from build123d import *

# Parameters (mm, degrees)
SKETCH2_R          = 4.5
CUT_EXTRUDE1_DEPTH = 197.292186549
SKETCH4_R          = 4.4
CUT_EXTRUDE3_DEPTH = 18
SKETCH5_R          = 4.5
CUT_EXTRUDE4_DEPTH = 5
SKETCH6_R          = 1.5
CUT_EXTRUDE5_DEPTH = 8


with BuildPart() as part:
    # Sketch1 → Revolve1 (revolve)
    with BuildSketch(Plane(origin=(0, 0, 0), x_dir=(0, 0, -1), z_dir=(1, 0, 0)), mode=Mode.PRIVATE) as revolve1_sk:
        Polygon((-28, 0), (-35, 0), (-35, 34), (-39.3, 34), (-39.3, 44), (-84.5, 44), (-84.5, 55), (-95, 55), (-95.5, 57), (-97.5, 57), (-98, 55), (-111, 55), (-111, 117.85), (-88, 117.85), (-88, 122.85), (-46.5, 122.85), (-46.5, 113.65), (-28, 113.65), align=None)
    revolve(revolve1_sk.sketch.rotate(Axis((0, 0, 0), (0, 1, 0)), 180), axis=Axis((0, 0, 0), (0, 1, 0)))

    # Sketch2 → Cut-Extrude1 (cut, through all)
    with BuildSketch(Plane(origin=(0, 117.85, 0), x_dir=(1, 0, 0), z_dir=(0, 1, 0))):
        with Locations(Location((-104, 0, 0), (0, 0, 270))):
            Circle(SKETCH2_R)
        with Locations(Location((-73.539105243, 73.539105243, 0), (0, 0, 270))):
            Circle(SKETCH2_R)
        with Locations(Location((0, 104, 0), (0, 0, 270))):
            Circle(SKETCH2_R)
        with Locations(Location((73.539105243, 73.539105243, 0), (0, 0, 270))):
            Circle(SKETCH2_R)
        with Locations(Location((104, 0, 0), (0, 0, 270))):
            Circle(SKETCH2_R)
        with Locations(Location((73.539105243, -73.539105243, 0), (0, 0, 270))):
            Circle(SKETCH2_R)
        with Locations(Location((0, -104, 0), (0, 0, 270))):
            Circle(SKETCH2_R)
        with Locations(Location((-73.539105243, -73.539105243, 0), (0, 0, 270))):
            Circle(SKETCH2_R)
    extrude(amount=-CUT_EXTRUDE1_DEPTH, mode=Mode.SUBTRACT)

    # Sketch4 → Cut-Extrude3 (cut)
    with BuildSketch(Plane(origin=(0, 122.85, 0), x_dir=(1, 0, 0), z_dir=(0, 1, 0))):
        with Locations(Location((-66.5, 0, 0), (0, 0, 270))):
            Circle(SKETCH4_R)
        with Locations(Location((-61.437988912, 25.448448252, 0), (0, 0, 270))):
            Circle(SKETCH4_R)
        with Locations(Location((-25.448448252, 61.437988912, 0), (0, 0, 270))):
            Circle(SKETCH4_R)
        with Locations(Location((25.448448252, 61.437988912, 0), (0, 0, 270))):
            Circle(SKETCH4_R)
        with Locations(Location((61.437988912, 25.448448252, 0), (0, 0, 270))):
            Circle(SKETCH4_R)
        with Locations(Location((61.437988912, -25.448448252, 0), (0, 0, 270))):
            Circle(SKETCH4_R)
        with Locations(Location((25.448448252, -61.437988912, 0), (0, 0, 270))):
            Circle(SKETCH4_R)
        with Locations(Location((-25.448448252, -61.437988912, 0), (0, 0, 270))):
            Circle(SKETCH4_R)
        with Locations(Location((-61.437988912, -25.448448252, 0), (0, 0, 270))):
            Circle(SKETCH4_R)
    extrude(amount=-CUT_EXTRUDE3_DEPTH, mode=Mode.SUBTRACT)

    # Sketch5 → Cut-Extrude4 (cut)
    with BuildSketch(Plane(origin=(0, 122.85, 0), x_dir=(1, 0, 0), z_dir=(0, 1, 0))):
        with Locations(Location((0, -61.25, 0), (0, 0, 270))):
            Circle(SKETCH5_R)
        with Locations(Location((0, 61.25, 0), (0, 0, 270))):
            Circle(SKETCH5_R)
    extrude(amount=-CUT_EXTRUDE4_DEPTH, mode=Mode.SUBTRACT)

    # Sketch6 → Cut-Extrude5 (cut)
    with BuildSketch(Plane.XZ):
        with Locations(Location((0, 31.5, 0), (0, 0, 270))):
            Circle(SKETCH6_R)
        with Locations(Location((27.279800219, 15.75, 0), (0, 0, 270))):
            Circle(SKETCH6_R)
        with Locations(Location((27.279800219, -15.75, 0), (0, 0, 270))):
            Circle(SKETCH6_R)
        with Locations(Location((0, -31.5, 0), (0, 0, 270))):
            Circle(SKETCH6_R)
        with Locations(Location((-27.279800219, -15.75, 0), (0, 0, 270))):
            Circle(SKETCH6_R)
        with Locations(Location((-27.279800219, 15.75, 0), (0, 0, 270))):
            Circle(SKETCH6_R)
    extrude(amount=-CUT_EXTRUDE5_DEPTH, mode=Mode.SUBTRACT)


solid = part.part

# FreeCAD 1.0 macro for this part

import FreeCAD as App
import Part
import Sketcher
Q = App.Units.Quantity

doc = App.newDocument("Part")
body = doc.addObject("PartDesign::Body", "Body")

sketch1 = body.newObject("Sketcher::SketchObject", "Sketch")
sketch1.AttachmentSupport = (doc.getObject("YZ_Plane"), [""])
sketch1.MapMode = "FlatFace"
sketch1.addGeometry(Part.LineSegment(App.Vector(0, 35, 0), App.Vector(0, 28, 0)), False)
sketch1.addGeometry(Part.LineSegment(App.Vector(0, 28, 0), App.Vector(113.65, 28, 0)), False)
sketch1.addGeometry(Part.LineSegment(App.Vector(113.65, 28, 0), App.Vector(113.65, 46.5, 0)), False)
sketch1.addGeometry(Part.LineSegment(App.Vector(113.65, 46.5, 0), App.Vector(122.85, 46.5, 0)), False)
sketch1.addGeometry(Part.LineSegment(App.Vector(122.85, 46.5, 0), App.Vector(122.85, 88, 0)), False)
sketch1.addGeometry(Part.LineSegment(App.Vector(122.85, 88, 0), App.Vector(117.85, 88, 0)), False)
sketch1.addGeometry(Part.LineSegment(App.Vector(117.85, 88, 0), App.Vector(117.85, 111, 0)), False)
sketch1.addGeometry(Part.LineSegment(App.Vector(117.85, 111, 0), App.Vector(55, 111, 0)), False)
sketch1.addGeometry(Part.LineSegment(App.Vector(55, 111, 0), App.Vector(55, 98, 0)), False)
sketch1.addGeometry(Part.LineSegment(App.Vector(55, 98, 0), App.Vector(57, 97.5, 0)), False)
sketch1.addGeometry(Part.LineSegment(App.Vector(57, 97.5, 0), App.Vector(57, 95.5, 0)), False)
sketch1.addGeometry(Part.LineSegment(App.Vector(57, 95.5, 0), App.Vector(55, 95, 0)), False)
sketch1.addGeometry(Part.LineSegment(App.Vector(55, 95, 0), App.Vector(55, 84.5, 0)), False)
sketch1.addGeometry(Part.LineSegment(App.Vector(55, 84.5, 0), App.Vector(44, 84.5, 0)), False)
sketch1.addGeometry(Part.LineSegment(App.Vector(44, 84.5, 0), App.Vector(44, 39.3, 0)), False)
sketch1.addGeometry(Part.LineSegment(App.Vector(44, 39.3, 0), App.Vector(34, 39.3, 0)), False)
sketch1.addGeometry(Part.LineSegment(App.Vector(34, 39.3, 0), App.Vector(34, 35, 0)), False)
sketch1.addGeometry(Part.LineSegment(App.Vector(34, 35, 0), App.Vector(0, 35, 0)), False)
sketch1.addConstraint(Sketcher.Constraint("Coincident", 0, 2, 1, 1))
sketch1.addConstraint(Sketcher.Constraint("Coincident", 1, 2, 2, 1))
sketch1.addConstraint(Sketcher.Constraint("Coincident", 2, 2, 3, 1))
sketch1.addConstraint(Sketcher.Constraint("Coincident", 3, 2, 4, 1))
sketch1.addConstraint(Sketcher.Constraint("Coincident", 4, 2, 5, 1))
sketch1.addConstraint(Sketcher.Constraint("Coincident", 5, 2, 6, 1))
sketch1.addConstraint(Sketcher.Constraint("Coincident", 6, 2, 7, 1))
sketch1.addConstraint(Sketcher.Constraint("Coincident", 7, 2, 8, 1))
sketch1.addConstraint(Sketcher.Constraint("Coincident", 8, 2, 9, 1))
sketch1.addConstraint(Sketcher.Constraint("Coincident", 9, 2, 10, 1))
sketch1.addConstraint(Sketcher.Constraint("Coincident", 10, 2, 11, 1))
sketch1.addConstraint(Sketcher.Constraint("Coincident", 11, 2, 12, 1))
sketch1.addConstraint(Sketcher.Constraint("Coincident", 12, 2, 13, 1))
sketch1.addConstraint(Sketcher.Constraint("Coincident", 13, 2, 14, 1))
sketch1.addConstraint(Sketcher.Constraint("Coincident", 14, 2, 15, 1))
sketch1.addConstraint(Sketcher.Constraint("Coincident", 15, 2, 16, 1))
sketch1.addConstraint(Sketcher.Constraint("Coincident", 16, 2, 17, 1))
sketch1.addConstraint(Sketcher.Constraint("Coincident", 17, 2, 0, 1))
sketch1.addConstraint(Sketcher.Constraint("Vertical", 0))
sketch1.addConstraint(Sketcher.Constraint("Horizontal", 1))
sketch1.addConstraint(Sketcher.Constraint("Vertical", 2))
sketch1.addConstraint(Sketcher.Constraint("Horizontal", 3))
sketch1.addConstraint(Sketcher.Constraint("Vertical", 4))
sketch1.addConstraint(Sketcher.Constraint("Horizontal", 5))
sketch1.addConstraint(Sketcher.Constraint("Vertical", 6))
sketch1.addConstraint(Sketcher.Constraint("Horizontal", 7))
sketch1.addConstraint(Sketcher.Constraint("Vertical", 8))
sketch1.addConstraint(Sketcher.Constraint("Vertical", 10))
sketch1.addConstraint(Sketcher.Constraint("Vertical", 12))
sketch1.addConstraint(Sketcher.Constraint("Horizontal", 13))
sketch1.addConstraint(Sketcher.Constraint("Vertical", 14))
sketch1.addConstraint(Sketcher.Constraint("Horizontal", 15))
sketch1.addConstraint(Sketcher.Constraint("Vertical", 16))
sketch1.addConstraint(Sketcher.Constraint("Horizontal", 17))
sketch1.addConstraint(Sketcher.Constraint("PointOnObject", 0, 2, -2))
sketch1.addConstraint(Sketcher.Constraint("Vertical", 8, 2, 11, 2))
sketch1.addConstraint(Sketcher.Constraint("Equal", 9, 11))
sketch1.addConstraint(Sketcher.Constraint("DistanceX", 5, 2, 5, 1, Q("5 mm")))
sketch1.addConstraint(Sketcher.Constraint("DistanceX", 13, 2, 13, 1, Q("11 mm")))
sketch1.addConstraint(Sketcher.Constraint("DistanceX", 15, 2, 15, 1, Q("10 mm")))
sketch1.addConstraint(Sketcher.Constraint("DistanceX", 17, 2, 17, 1, Q("34 mm")))
sketch1.addConstraint(Sketcher.Constraint("DistanceY", 0, 2, 0, 1, Q("7 mm")))
sketch1.addConstraint(Sketcher.Constraint("DistanceY", 6, 1, 6, 2, Q("23 mm")))
sketch1.addConstraint(Sketcher.Constraint("DistanceY", 8, 2, 8, 1, Q("13 mm")))
sketch1.addConstraint(Sketcher.Constraint("DistanceY", 10, 2, 10, 1, Q("2 mm")))
sketch1.addConstraint(Sketcher.Constraint("DistanceX", 3, 1, 3, 2, Q("9.2 mm")))
sketch1.addConstraint(Sketcher.Constraint("DistanceY", 2, 1, 2, 2, Q("18.5 mm")))
sketch1.addConstraint(Sketcher.Constraint("DistanceY", 4, 1, 4, 2, Q("41.5 mm")))
sketch1.addConstraint(Sketcher.Constraint("DistanceY", 12, 2, 12, 1, Q("10.5 mm")))
sketch1.addConstraint(Sketcher.Constraint("DistanceY", 14, 2, 14, 1, Q("45.2 mm")))
sketch1.addConstraint(Sketcher.Constraint("DistanceY", 16, 2, 16, 1, Q("4.3 mm")))
sketch1.addConstraint(Sketcher.Constraint("DistanceY", -1, 1, 0, 2, Q("28 mm")))
sketch1.addConstraint(Sketcher.Constraint("DistanceX", -1, 1, 9, 2, Q("57 mm")))
sketch1.addConstraint(Sketcher.Constraint("DistanceX", 1, 1, 1, 2, Q("113.65 mm")))
revolution = body.newObject("PartDesign::Revolution", "Revolution")
revolution.Profile = sketch1
revolution.ReferenceAxis = (sketch1, ["H_Axis"])
revolution.Angle = 360

sketch2 = body.newObject("Sketcher::SketchObject", "Sketch001")
sketch2.AttachmentSupport = (doc.getObject("XZ_Plane"), [""])
sketch2.MapMode = "FlatFace"
sketch2.AttachmentOffset = App.Placement(App.Vector(0, 0, -117.85), App.Rotation())
sketch2.addGeometry(Part.Circle(App.Vector(-104, 0, 0), App.Vector(0, 0, 1), 4.5), False)
sketch2.addGeometry(Part.Circle(App.Vector(-73.539105, -73.539105, 0), App.Vector(0, 0, 1), 4.5), False)
sketch2.addGeometry(Part.Circle(App.Vector(0, -104, 0), App.Vector(0, 0, 1), 4.5), False)
sketch2.addGeometry(Part.Circle(App.Vector(73.539105, -73.539105, 0), App.Vector(0, 0, 1), 4.5), False)
sketch2.addGeometry(Part.Circle(App.Vector(104, 0, 0), App.Vector(0, 0, 1), 4.5), False)
sketch2.addGeometry(Part.Circle(App.Vector(73.539105, 73.539105, 0), App.Vector(0, 0, 1), 4.5), False)
sketch2.addGeometry(Part.Circle(App.Vector(0, 104, 0), App.Vector(0, 0, 1), 4.5), False)
sketch2.addGeometry(Part.Circle(App.Vector(-73.539105, 73.539105, 0), App.Vector(0, 0, 1), 4.5), False)
sketch2.addConstraint(Sketcher.Constraint("Equal", 0, 1))
sketch2.addConstraint(Sketcher.Constraint("Equal", 1, 2))
sketch2.addConstraint(Sketcher.Constraint("Equal", 2, 3))
sketch2.addConstraint(Sketcher.Constraint("Equal", 3, 4))
sketch2.addConstraint(Sketcher.Constraint("Equal", 4, 5))
sketch2.addConstraint(Sketcher.Constraint("Equal", 5, 6))
sketch2.addConstraint(Sketcher.Constraint("Equal", 6, 7))
sketch2.addConstraint(Sketcher.Constraint("Symmetric", 0, 3, 4, 3, -1, 1))
sketch2.addConstraint(Sketcher.Constraint("Symmetric", 1, 3, 5, 3, -1, 1))
sketch2.addConstraint(Sketcher.Constraint("Symmetric", 2, 3, 6, 3, -1, 1))
sketch2.addConstraint(Sketcher.Constraint("Symmetric", 3, 3, 7, 3, -1, 1))
sketch2.addConstraint(Sketcher.Constraint("Symmetric", 1, 3, 3, 3, -2))
sketch2.addConstraint(Sketcher.Constraint("PointOnObject", 0, 3, -1))
sketch2.addConstraint(Sketcher.Constraint("PointOnObject", 2, 3, -2))
sketch2.addConstraint(Sketcher.Constraint("Diameter", 0, Q("9 mm")))
sketch2.addConstraint(Sketcher.Constraint("DistanceX", 0, 3, -1, 1, Q("104 mm")))
sketch2.addConstraint(Sketcher.Constraint("DistanceY", 2, 3, -1, 1, Q("104 mm")))
sketch2.addConstraint(Sketcher.Constraint("DistanceX", 1, 3, 3, 3, Q("147.07821 mm")))
sketch2.addConstraint(Sketcher.Constraint("DistanceY", 3, 3, 5, 3, Q("147.07821 mm")))
pocket1 = body.newObject("PartDesign::Pocket", "Pocket")
pocket1.Profile = sketch2
pocket1.Type = "ThroughAll"
pocket1.Reversed = True

sketch3 = body.newObject("Sketcher::SketchObject", "Sketch002")
sketch3.AttachmentSupport = (doc.getObject("XZ_Plane"), [""])
sketch3.MapMode = "FlatFace"
sketch3.AttachmentOffset = App.Placement(App.Vector(0, 0, -122.85), App.Rotation())
sketch3.addGeometry(Part.Circle(App.Vector(-66.5, 0, 0), App.Vector(0, 0, 1), 4.4), False)
sketch3.addGeometry(Part.Circle(App.Vector(-61.437989, -25.448448, 0), App.Vector(0, 0, 1), 4.4), False)
sketch3.addGeometry(Part.Circle(App.Vector(-25.448448, -61.437989, 0), App.Vector(0, 0, 1), 4.4), False)
sketch3.addGeometry(Part.Circle(App.Vector(25.448448, -61.437989, 0), App.Vector(0, 0, 1), 4.4), False)
sketch3.addGeometry(Part.Circle(App.Vector(61.437989, -25.448448, 0), App.Vector(0, 0, 1), 4.4), False)
sketch3.addGeometry(Part.Circle(App.Vector(61.437989, 25.448448, 0), App.Vector(0, 0, 1), 4.4), False)
sketch3.addGeometry(Part.Circle(App.Vector(25.448448, 61.437989, 0), App.Vector(0, 0, 1), 4.4), False)
sketch3.addGeometry(Part.Circle(App.Vector(-25.448448, 61.437989, 0), App.Vector(0, 0, 1), 4.4), False)
sketch3.addGeometry(Part.Circle(App.Vector(-61.437989, 25.448448, 0), App.Vector(0, 0, 1), 4.4), False)
sketch3.addConstraint(Sketcher.Constraint("Equal", 0, 1))
sketch3.addConstraint(Sketcher.Constraint("Equal", 1, 2))
sketch3.addConstraint(Sketcher.Constraint("Equal", 2, 3))
sketch3.addConstraint(Sketcher.Constraint("Equal", 3, 4))
sketch3.addConstraint(Sketcher.Constraint("Equal", 4, 5))
sketch3.addConstraint(Sketcher.Constraint("Equal", 5, 6))
sketch3.addConstraint(Sketcher.Constraint("Equal", 6, 7))
sketch3.addConstraint(Sketcher.Constraint("Equal", 7, 8))
sketch3.addConstraint(Sketcher.Constraint("Symmetric", 1, 3, 5, 3, -1, 1))
sketch3.addConstraint(Sketcher.Constraint("Symmetric", 2, 3, 6, 3, -1, 1))
sketch3.addConstraint(Sketcher.Constraint("Symmetric", 3, 3, 7, 3, -1, 1))
sketch3.addConstraint(Sketcher.Constraint("Symmetric", 4, 3, 8, 3, -1, 1))
sketch3.addConstraint(Sketcher.Constraint("Symmetric", 2, 3, 3, 3, -2))
sketch3.addConstraint(Sketcher.Constraint("Symmetric", 1, 3, 4, 3, -2))
sketch3.addConstraint(Sketcher.Constraint("PointOnObject", 0, 3, -1))
sketch3.addConstraint(Sketcher.Constraint("Diameter", 0, Q("8.8 mm")))
sketch3.addConstraint(Sketcher.Constraint("DistanceX", 0, 3, -1, 1, Q("66.5 mm")))
sketch3.addConstraint(Sketcher.Constraint("DistanceX", 1, 3, -1, 1, Q("61.437989 mm")))
sketch3.addConstraint(Sketcher.Constraint("DistanceY", 1, 3, -1, 1, Q("25.448448 mm")))
sketch3.addConstraint(Sketcher.Constraint("DistanceX", 2, 3, -1, 1, Q("25.448448 mm")))
sketch3.addConstraint(Sketcher.Constraint("DistanceY", 2, 3, -1, 1, Q("61.437989 mm")))
pocket2 = body.newObject("PartDesign::Pocket", "Pocket001")
pocket2.Profile = sketch3
pocket2.Length = 18
pocket2.Reversed = True

sketch4 = body.newObject("Sketcher::SketchObject", "Sketch003")
sketch4.AttachmentSupport = (doc.getObject("XZ_Plane"), [""])
sketch4.MapMode = "FlatFace"
sketch4.AttachmentOffset = App.Placement(App.Vector(0, 0, -122.85), App.Rotation())
sketch4.addGeometry(Part.Circle(App.Vector(0, 61.25, 0), App.Vector(0, 0, 1), 4.5), False)
sketch4.addGeometry(Part.Circle(App.Vector(0, -61.25, 0), App.Vector(0, 0, 1), 4.5), False)
sketch4.addConstraint(Sketcher.Constraint("Equal", 0, 1))
sketch4.addConstraint(Sketcher.Constraint("Symmetric", 0, 3, 1, 3, -1, 1))
sketch4.addConstraint(Sketcher.Constraint("PointOnObject", 0, 3, -2))
sketch4.addConstraint(Sketcher.Constraint("Diameter", 0, Q("9 mm")))
sketch4.addConstraint(Sketcher.Constraint("DistanceY", 1, 3, 0, 3, Q("122.5 mm")))
pocket3 = body.newObject("PartDesign::Pocket", "Pocket002")
pocket3.Profile = sketch4
pocket3.Length = 5
pocket3.Reversed = True

sketch5 = body.newObject("Sketcher::SketchObject", "Sketch004")
sketch5.AttachmentSupport = (doc.getObject("XZ_Plane"), [""])
sketch5.MapMode = "FlatFace"
sketch5.addGeometry(Part.Circle(App.Vector(0, 31.5, 0), App.Vector(0, 0, 1), 1.5), False)
sketch5.addGeometry(Part.Circle(App.Vector(27.2798, 15.75, 0), App.Vector(0, 0, 1), 1.5), False)
sketch5.addGeometry(Part.Circle(App.Vector(27.2798, -15.75, 0), App.Vector(0, 0, 1), 1.5), False)
sketch5.addGeometry(Part.Circle(App.Vector(0, -31.5, 0), App.Vector(0, 0, 1), 1.5), False)
sketch5.addGeometry(Part.Circle(App.Vector(-27.2798, -15.75, 0), App.Vector(0, 0, 1), 1.5), False)
sketch5.addGeometry(Part.Circle(App.Vector(-27.2798, 15.75, 0), App.Vector(0, 0, 1), 1.5), False)
sketch5.addConstraint(Sketcher.Constraint("Equal", 0, 1))
sketch5.addConstraint(Sketcher.Constraint("Equal", 1, 2))
sketch5.addConstraint(Sketcher.Constraint("Equal", 2, 3))
sketch5.addConstraint(Sketcher.Constraint("Equal", 3, 4))
sketch5.addConstraint(Sketcher.Constraint("Equal", 4, 5))
sketch5.addConstraint(Sketcher.Constraint("Symmetric", 0, 3, 3, 3, -1, 1))
sketch5.addConstraint(Sketcher.Constraint("Symmetric", 1, 3, 4, 3, -1, 1))
sketch5.addConstraint(Sketcher.Constraint("Symmetric", 2, 3, 5, 3, -1, 1))
sketch5.addConstraint(Sketcher.Constraint("Symmetric", 2, 3, 4, 3, -2))
sketch5.addConstraint(Sketcher.Constraint("PointOnObject", 0, 3, -2))
sketch5.addConstraint(Sketcher.Constraint("Diameter", 0, Q("3 mm")))
sketch5.addConstraint(Sketcher.Constraint("DistanceY", 3, 3, 0, 3, Q("63 mm")))
sketch5.addConstraint(Sketcher.Constraint("DistanceY", 2, 3, 1, 3, Q("31.5 mm")))
sketch5.addConstraint(Sketcher.Constraint("DistanceX", -1, 1, 1, 3, Q("27.2798 mm")))
pocket4 = body.newObject("PartDesign::Pocket", "Pocket003")
pocket4.Profile = sketch5
pocket4.Length = 8

doc.recompute()
